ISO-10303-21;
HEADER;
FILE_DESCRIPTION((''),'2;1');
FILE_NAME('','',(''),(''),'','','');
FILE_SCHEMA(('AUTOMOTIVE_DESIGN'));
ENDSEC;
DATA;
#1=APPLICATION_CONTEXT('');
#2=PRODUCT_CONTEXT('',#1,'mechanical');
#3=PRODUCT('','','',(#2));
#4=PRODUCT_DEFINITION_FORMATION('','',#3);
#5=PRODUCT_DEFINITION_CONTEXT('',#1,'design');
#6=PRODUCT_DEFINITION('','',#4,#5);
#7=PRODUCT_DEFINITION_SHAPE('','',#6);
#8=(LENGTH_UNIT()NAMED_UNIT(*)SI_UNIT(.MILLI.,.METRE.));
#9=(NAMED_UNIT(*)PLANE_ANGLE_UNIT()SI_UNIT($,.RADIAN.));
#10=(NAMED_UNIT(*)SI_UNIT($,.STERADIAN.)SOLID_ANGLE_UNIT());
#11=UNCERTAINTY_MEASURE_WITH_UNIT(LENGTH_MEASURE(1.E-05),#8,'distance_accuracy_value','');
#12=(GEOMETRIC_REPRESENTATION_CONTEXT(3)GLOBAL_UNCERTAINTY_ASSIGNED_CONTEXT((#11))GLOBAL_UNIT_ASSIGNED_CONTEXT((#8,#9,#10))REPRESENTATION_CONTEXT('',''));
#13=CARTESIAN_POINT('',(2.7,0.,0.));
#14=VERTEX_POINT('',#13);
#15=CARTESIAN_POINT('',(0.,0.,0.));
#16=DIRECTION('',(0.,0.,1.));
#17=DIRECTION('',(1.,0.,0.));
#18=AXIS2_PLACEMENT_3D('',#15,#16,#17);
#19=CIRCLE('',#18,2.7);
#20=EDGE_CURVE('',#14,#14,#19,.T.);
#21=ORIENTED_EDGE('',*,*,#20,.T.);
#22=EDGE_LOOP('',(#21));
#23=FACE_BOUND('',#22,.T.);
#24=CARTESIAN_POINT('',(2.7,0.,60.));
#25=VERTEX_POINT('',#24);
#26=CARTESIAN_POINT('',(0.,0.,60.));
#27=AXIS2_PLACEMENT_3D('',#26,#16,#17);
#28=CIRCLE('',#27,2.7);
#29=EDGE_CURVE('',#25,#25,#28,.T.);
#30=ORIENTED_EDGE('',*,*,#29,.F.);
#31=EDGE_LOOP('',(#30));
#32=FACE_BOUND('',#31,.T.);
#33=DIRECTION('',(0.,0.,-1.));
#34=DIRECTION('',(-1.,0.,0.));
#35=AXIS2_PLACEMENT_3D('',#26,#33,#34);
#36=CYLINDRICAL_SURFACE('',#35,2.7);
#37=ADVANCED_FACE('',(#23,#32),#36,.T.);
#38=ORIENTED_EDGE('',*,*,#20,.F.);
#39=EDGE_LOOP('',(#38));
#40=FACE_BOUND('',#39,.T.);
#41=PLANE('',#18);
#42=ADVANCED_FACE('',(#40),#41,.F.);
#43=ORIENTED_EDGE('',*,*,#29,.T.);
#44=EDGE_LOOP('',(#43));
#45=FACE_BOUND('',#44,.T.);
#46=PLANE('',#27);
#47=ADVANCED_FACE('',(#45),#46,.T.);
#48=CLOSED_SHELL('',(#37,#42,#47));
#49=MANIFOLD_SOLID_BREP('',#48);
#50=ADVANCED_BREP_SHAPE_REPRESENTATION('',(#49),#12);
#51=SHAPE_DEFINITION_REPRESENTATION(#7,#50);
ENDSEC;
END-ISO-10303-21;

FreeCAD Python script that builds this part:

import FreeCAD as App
import Part
import Sketcher

doc = App.newDocument("Part")
body = doc.addObject("PartDesign::Body", "Body")

sketch1 = body.newObject("Sketcher::SketchObject", "Sketch")
sketch1.AttachmentSupport = (doc.getObject("XY_Plane"), [""])
sketch1.MapMode = "FlatFace"
sketch1.addGeometry(Part.Circle(App.Vector(0, 0, 0), App.Vector(0, 0, 1), 2.7), False)
sketch1.addConstraint([
    Sketcher.Constraint("Coincident", 0, 3, -1, 1),
    Sketcher.Constraint("Diameter", 0, 5.4),
])
pad1 = body.newObject("PartDesign::Pad", "Pad")
pad1.Profile = sketch1
pad1.Length = 60

doc.recompute()
